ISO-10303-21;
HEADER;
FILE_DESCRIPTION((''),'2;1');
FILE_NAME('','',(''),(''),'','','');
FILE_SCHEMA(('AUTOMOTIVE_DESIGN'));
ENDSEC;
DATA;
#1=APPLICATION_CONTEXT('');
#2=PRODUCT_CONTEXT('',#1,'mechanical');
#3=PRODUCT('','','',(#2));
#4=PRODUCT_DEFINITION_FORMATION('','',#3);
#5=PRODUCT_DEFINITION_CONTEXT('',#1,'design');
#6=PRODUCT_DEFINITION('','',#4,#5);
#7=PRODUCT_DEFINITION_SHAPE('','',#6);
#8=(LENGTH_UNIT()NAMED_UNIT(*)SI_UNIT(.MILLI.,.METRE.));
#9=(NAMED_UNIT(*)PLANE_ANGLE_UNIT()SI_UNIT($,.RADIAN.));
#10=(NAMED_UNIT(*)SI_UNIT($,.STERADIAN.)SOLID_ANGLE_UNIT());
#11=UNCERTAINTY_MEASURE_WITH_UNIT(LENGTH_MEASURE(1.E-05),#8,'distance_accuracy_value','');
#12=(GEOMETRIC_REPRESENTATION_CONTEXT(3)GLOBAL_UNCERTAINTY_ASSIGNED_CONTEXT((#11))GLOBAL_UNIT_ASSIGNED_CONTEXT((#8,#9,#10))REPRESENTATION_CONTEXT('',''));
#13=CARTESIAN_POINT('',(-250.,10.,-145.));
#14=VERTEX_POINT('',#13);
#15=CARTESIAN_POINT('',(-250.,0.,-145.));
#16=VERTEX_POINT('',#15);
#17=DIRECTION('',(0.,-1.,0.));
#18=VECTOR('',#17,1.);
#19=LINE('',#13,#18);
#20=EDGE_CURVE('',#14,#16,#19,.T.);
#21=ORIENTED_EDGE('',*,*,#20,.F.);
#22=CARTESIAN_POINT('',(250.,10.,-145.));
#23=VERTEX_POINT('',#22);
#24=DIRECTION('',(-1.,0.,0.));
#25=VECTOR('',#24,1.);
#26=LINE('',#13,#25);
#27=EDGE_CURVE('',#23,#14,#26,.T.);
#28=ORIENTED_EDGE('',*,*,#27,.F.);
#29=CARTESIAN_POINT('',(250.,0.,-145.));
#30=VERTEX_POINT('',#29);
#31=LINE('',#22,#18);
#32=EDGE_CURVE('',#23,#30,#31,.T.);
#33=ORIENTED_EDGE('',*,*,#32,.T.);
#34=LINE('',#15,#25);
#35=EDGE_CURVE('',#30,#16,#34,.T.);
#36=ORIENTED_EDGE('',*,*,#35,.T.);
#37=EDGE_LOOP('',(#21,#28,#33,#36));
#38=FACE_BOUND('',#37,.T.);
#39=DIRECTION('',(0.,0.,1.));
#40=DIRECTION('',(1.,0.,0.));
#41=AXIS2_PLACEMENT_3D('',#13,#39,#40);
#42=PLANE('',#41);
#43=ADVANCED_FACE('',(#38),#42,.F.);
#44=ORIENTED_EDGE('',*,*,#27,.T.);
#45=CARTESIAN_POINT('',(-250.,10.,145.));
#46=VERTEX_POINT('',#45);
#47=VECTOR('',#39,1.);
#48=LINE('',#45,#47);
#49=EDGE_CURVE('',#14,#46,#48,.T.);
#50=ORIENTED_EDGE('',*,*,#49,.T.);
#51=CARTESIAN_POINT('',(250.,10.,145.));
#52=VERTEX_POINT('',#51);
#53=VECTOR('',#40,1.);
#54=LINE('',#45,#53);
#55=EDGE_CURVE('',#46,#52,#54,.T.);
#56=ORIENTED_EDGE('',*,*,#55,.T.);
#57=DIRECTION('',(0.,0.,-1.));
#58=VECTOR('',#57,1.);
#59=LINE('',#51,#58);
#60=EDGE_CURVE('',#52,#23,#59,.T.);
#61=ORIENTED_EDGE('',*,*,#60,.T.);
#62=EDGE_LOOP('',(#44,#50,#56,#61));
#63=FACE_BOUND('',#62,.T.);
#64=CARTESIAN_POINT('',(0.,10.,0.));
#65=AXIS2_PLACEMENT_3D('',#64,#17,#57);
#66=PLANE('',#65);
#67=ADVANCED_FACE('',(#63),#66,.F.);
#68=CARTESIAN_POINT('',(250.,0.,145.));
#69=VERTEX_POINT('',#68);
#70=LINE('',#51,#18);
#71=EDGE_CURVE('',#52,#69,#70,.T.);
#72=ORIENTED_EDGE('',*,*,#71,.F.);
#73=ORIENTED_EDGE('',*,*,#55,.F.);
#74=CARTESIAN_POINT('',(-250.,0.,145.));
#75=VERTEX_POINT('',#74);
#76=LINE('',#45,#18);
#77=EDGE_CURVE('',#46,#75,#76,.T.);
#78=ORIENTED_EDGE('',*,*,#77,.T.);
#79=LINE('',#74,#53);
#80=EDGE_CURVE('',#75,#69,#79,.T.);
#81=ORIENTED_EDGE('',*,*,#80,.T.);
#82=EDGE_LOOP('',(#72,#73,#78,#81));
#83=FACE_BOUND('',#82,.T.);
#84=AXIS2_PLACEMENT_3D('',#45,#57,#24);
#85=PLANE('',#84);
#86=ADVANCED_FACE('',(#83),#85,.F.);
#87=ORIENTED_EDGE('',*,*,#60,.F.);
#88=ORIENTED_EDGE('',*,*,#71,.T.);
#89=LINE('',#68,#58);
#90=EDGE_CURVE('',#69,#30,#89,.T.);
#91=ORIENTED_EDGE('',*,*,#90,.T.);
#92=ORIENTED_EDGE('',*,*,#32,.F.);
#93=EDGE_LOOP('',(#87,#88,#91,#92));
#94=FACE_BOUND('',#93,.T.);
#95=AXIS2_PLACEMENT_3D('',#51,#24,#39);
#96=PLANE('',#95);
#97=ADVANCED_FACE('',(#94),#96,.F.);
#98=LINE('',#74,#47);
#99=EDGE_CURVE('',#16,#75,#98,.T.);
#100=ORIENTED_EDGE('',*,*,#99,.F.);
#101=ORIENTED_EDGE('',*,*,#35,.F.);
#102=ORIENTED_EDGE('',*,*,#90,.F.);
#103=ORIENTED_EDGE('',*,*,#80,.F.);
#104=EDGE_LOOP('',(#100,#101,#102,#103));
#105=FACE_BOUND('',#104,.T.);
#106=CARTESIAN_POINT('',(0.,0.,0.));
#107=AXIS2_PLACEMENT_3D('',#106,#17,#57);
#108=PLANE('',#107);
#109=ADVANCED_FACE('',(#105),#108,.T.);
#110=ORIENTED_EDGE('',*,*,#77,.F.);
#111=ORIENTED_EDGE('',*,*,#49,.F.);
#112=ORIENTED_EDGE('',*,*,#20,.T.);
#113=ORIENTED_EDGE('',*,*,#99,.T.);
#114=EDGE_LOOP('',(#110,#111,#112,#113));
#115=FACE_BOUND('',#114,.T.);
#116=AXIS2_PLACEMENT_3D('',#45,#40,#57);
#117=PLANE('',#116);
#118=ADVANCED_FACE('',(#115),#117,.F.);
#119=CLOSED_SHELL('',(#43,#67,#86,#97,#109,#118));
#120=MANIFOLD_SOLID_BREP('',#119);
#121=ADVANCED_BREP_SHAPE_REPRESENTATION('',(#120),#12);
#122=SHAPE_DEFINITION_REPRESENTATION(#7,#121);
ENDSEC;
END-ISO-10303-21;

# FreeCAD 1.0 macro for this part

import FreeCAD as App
import Part
import Sketcher

V = App.Vector

doc = App.newDocument("Part")
params = doc.addObject("Spreadsheet::Sheet", "Params")
for row, (alias, value) in enumerate([
    ("sketch1_width", "500 mm"),
    ("sketch1_height", "290 mm"),
    ("pad1_length", "10 mm"),
], start=1):
    params.set(f"A{row}", alias)
    params.set(f"B{row}", "=" + value)
    params.setAlias(f"B{row}", alias)

body = doc.addObject("PartDesign::Body", "Body")

# Sketch on XZ plane
sketch1 = body.newObject("Sketcher::SketchObject", "Sketch")
sketch1.AttachmentSupport = (doc.getObject("XZ_Plane"), [""])
sketch1.MapMode = "FlatFace"
sketch1.addGeometry(Part.LineSegment(V(-250, -145, 0), V(-250, 145, 0)), False)
sketch1.addGeometry(Part.LineSegment(V(-250, 145, 0), V(250, 145, 0)), False)
sketch1.addGeometry(Part.LineSegment(V(250, 145, 0), V(250, -145, 0)), False)
sketch1.addGeometry(Part.LineSegment(V(250, -145, 0), V(-250, -145, 0)), False)
sketch1.addConstraint(Sketcher.Constraint("Coincident", 0, 2, 1, 1))
sketch1.addConstraint(Sketcher.Constraint("Coincident", 1, 2, 2, 1))
sketch1.addConstraint(Sketcher.Constraint("Coincident", 2, 2, 3, 1))
sketch1.addConstraint(Sketcher.Constraint("Coincident", 3, 2, 0, 1))
sketch1.addConstraint(Sketcher.Constraint("Vertical", 0))
sketch1.addConstraint(Sketcher.Constraint("Horizontal", 1))
sketch1.addConstraint(Sketcher.Constraint("Vertical", 2))
sketch1.addConstraint(Sketcher.Constraint("Horizontal", 3))
sketch1.addConstraint(Sketcher.Constraint("Symmetric", 0, 2, 2, 2, -1, 1))
sketch1.addConstraint(Sketcher.Constraint("DistanceX", 1, 1, 1, 2, 500.0))
sketch1.addConstraint(Sketcher.Constraint("DistanceY", 0, 1, 0, 2, 290.0))
sketch1.setExpression("Constraints[9]", "Params.sketch1_width")
sketch1.setExpression("Constraints[10]", "Params.sketch1_height")
pad1 = body.newObject("PartDesign::Pad", "Pad")
pad1.Profile = sketch1
pad1.setExpression("Length", "Params.pad1_length")
pad1.Reversed = True

doc.recompute()
